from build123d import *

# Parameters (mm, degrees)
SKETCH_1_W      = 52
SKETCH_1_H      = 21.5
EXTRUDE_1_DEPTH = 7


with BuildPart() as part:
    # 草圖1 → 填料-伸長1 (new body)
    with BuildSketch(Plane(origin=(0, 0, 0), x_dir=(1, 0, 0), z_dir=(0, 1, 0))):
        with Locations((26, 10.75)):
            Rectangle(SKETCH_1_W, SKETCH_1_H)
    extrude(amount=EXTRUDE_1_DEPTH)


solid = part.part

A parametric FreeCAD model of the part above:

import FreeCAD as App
import Part
import Sketcher
from FreeCAD import Vector
Q = App.Units.Quantity

doc = App.newDocument("Part")
body = doc.addObject("PartDesign::Body", "Body")

# Sketch on XZ plane
sketch1 = doc.addObject("Sketcher::SketchObject", "Sketch")
body.addObject(sketch1)
sketch1.AttachmentSupport = (doc.XZ_Plane, [""])
sketch1.MapMode = "FlatFace"
sketch1.addGeometry([
    Part.LineSegment(Vector(0, -22, 0), Vector(0, 0, 0)),
    Part.LineSegment(Vector(0, 0, 0), Vector(52, 0, 0)),
    Part.LineSegment(Vector(52, 0, 0), Vector(52, -22, 0)),
    Part.LineSegment(Vector(52, -22, 0), Vector(0, -22, 0)),
], False)
sketch1.addConstraint([
    Sketcher.Constraint("Coincident", 0, 2, 1, 1),
    Sketcher.Constraint("Coincident", 1, 2, 2, 1),
    Sketcher.Constraint("Coincident", 2, 2, 3, 1),
    Sketcher.Constraint("Coincident", 3, 2, 0, 1),
    Sketcher.Constraint("Vertical", 0),
    Sketcher.Constraint("Horizontal", 1),
    Sketcher.Constraint("Vertical", 2),
    Sketcher.Constraint("Horizontal", 3),
    Sketcher.Constraint("Coincident", 0, 2, -1, 1),
    Sketcher.Constraint("DistanceX", 1, 1, 1, 2, Q("52 mm")),
    Sketcher.Constraint("DistanceY", 0, 1, 0, 2, Q("21.5 mm")),
])
pad1 = doc.addObject("PartDesign::Pad", "Pad")
body.addObject(pad1)
pad1.Profile = sketch1
pad1.Length = 7
pad1.Reversed = True

doc.recompute()
